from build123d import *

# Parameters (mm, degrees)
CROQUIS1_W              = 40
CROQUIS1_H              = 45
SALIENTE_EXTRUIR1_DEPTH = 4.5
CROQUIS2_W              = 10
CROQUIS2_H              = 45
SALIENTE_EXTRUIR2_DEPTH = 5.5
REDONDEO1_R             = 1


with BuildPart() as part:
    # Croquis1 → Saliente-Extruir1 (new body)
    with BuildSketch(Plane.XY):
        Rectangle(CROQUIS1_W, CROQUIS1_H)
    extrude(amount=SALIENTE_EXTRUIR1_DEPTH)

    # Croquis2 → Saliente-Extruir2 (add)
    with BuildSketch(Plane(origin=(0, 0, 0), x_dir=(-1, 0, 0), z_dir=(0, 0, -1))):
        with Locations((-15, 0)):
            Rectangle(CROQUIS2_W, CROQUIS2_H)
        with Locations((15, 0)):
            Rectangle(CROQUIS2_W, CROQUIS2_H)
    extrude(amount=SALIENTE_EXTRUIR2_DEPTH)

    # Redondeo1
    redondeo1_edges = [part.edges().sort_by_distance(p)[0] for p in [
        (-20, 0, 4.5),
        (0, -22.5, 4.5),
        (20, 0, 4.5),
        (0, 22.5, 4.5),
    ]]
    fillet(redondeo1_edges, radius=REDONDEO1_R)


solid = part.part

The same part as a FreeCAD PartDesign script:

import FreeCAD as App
import Part
import Sketcher

V = App.Vector
Q = App.Units.Quantity


def edges_at(feature, points):
    """Names of the edges that pass closest to the given points."""
    edges = feature.Shape.Edges
    near = lambda p: min(range(len(edges)), key=lambda i: edges[i].distToShape(Part.Vertex(*p))[0])
    return sorted({f"Edge{near(p) + 1}" for p in points})

doc = App.newDocument("Part")
params = doc.addObject("Spreadsheet::Sheet", "Params")
for row, (alias, value) in enumerate([
    ("sketch1_width", "40 mm"),
    ("sketch1_height", "45 mm"),
    ("pad1_length", "4.5 mm"),
    ("sketch2_width", "10 mm"),
    ("sketch2_height", "45 mm"),
    ("pad2_length", "5.5 mm"),
    ("fillet_radius", "1 mm"),
], start=1):
    params.set(f"A{row}", alias)
    params.set(f"B{row}", "=" + value)
    params.setAlias(f"B{row}", alias)

body = doc.addObject("PartDesign::Body", "Body")

# Sketch on XY plane
sketch1 = body.newObject("Sketcher::SketchObject", "Sketch")
sketch1.AttachmentSupport = (doc.getObject("XY_Plane"), [""])
sketch1.MapMode = "FlatFace"
sketch1.addGeometry(Part.LineSegment(V(-20, 22, 0), V(-20, -22, 0)), False)
sketch1.addGeometry(Part.LineSegment(V(-20, -22, 0), V(20, -22, 0)), False)
sketch1.addGeometry(Part.LineSegment(V(20, -22, 0), V(20, 22, 0)), False)
sketch1.addGeometry(Part.LineSegment(V(20, 22, 0), V(-20, 22, 0)), False)
sketch1.addConstraint(Sketcher.Constraint("Coincident", 0, 2, 1, 1))
sketch1.addConstraint(Sketcher.Constraint("Coincident", 1, 2, 2, 1))
sketch1.addConstraint(Sketcher.Constraint("Coincident", 2, 2, 3, 1))
sketch1.addConstraint(Sketcher.Constraint("Coincident", 3, 2, 0, 1))
sketch1.addConstraint(Sketcher.Constraint("Vertical", 0))
sketch1.addConstraint(Sketcher.Constraint("Horizontal", 1))
sketch1.addConstraint(Sketcher.Constraint("Vertical", 2))
sketch1.addConstraint(Sketcher.Constraint("Horizontal", 3))
sketch1.addConstraint(Sketcher.Constraint("Symmetric", 0, 2, 2, 2, -1, 1))
sketch1.addConstraint(Sketcher.Constraint("DistanceX", 1, 1, 1, 2, Q("40 mm")))
sketch1.addConstraint(Sketcher.Constraint("DistanceY", 0, 2, 0, 1, Q("45 mm")))
sketch1.setExpression("Constraints[9]", "Params.sketch1_width")
sketch1.setExpression("Constraints[10]", "Params.sketch1_height")
pad1 = body.newObject("PartDesign::Pad", "Pad")
pad1.Profile = sketch1
pad1.setExpression("Length", "Params.pad1_length")

# Sketch on XY plane
sketch2 = body.newObject("Sketcher::SketchObject", "Sketch001")
sketch2.AttachmentSupport = (doc.getObject("XY_Plane"), [""])
sketch2.MapMode = "FlatFace"
sketch2.addGeometry(Part.LineSegment(V(20, 22, 0), V(20, -22, 0)), False)
sketch2.addGeometry(Part.LineSegment(V(20, -22, 0), V(10, -22, 0)), False)
sketch2.addGeometry(Part.LineSegment(V(10, -22, 0), V(10, 22, 0)), False)
sketch2.addGeometry(Part.LineSegment(V(10, 22, 0), V(20, 22, 0)), False)
sketch2.addGeometry(Part.LineSegment(V(-10, 22, 0), V(-10, -22, 0)), False)
sketch2.addGeometry(Part.LineSegment(V(-10, -22, 0), V(-20, -22, 0)), False)
sketch2.addGeometry(Part.LineSegment(V(-20, -22, 0), V(-20, 22, 0)), False)
sketch2.addGeometry(Part.LineSegment(V(-20, 22, 0), V(-10, 22, 0)), False)
sketch2.addConstraint(Sketcher.Constraint("Coincident", 0, 2, 1, 1))
sketch2.addConstraint(Sketcher.Constraint("Coincident", 1, 2, 2, 1))
sketch2.addConstraint(Sketcher.Constraint("Coincident", 2, 2, 3, 1))
sketch2.addConstraint(Sketcher.Constraint("Coincident", 3, 2, 0, 1))
sketch2.addConstraint(Sketcher.Constraint("Coincident", 4, 2, 5, 1))
sketch2.addConstraint(Sketcher.Constraint("Coincident", 5, 2, 6, 1))
sketch2.addConstraint(Sketcher.Constraint("Coincident", 6, 2, 7, 1))
sketch2.addConstraint(Sketcher.Constraint("Coincident", 7, 2, 4, 1))
sketch2.addConstraint(Sketcher.Constraint("Vertical", 0))
sketch2.addConstraint(Sketcher.Constraint("Horizontal", 1))
sketch2.addConstraint(Sketcher.Constraint("Vertical", 2))
sketch2.addConstraint(Sketcher.Constraint("Horizontal", 3))
sketch2.addConstraint(Sketcher.Constraint("Vertical", 4))
sketch2.addConstraint(Sketcher.Constraint("Horizontal", 5))
sketch2.addConstraint(Sketcher.Constraint("Vertical", 6))
sketch2.addConstraint(Sketcher.Constraint("Horizontal", 7))
sketch2.addConstraint(Sketcher.Constraint("Symmetric", 2, 2, 4, 2, -1, 1))
sketch2.addConstraint(Sketcher.Constraint("Symmetric", 0, 2, 6, 2, -1, 1))
sketch2.addConstraint(Sketcher.Constraint("Horizontal", 1, 2, 4, 2))
sketch2.addConstraint(Sketcher.Constraint("DistanceX", 1, 2, 1, 1, Q("10 mm")))
sketch2.addConstraint(Sketcher.Constraint("DistanceY", 0, 2, 0, 1, Q("45 mm")))
sketch2.addConstraint(Sketcher.Constraint("DistanceX", -1, 1, 0, 2, Q("20 mm")))
sketch2.setExpression("Constraints[19]", "Params.sketch2_width")
sketch2.setExpression("Constraints[20]", "Params.sketch2_height")
pad2 = body.newObject("PartDesign::Pad", "Pad001")
pad2.Profile = sketch2
pad2.setExpression("Length", "Params.pad2_length")
pad2.Reversed = True
doc.recompute()

fillet = body.newObject("PartDesign::Fillet", "Fillet")
fillet.Base = (pad2, edges_at(pad2, [
    (-20, 0, 4.5),
    (0, -22.5, 4.5),
    (20, 0, 4.5),
    (0, 22.5, 4.5),
]))
fillet.setExpression("Radius", "Params.fillet_radius")

doc.recompute()
